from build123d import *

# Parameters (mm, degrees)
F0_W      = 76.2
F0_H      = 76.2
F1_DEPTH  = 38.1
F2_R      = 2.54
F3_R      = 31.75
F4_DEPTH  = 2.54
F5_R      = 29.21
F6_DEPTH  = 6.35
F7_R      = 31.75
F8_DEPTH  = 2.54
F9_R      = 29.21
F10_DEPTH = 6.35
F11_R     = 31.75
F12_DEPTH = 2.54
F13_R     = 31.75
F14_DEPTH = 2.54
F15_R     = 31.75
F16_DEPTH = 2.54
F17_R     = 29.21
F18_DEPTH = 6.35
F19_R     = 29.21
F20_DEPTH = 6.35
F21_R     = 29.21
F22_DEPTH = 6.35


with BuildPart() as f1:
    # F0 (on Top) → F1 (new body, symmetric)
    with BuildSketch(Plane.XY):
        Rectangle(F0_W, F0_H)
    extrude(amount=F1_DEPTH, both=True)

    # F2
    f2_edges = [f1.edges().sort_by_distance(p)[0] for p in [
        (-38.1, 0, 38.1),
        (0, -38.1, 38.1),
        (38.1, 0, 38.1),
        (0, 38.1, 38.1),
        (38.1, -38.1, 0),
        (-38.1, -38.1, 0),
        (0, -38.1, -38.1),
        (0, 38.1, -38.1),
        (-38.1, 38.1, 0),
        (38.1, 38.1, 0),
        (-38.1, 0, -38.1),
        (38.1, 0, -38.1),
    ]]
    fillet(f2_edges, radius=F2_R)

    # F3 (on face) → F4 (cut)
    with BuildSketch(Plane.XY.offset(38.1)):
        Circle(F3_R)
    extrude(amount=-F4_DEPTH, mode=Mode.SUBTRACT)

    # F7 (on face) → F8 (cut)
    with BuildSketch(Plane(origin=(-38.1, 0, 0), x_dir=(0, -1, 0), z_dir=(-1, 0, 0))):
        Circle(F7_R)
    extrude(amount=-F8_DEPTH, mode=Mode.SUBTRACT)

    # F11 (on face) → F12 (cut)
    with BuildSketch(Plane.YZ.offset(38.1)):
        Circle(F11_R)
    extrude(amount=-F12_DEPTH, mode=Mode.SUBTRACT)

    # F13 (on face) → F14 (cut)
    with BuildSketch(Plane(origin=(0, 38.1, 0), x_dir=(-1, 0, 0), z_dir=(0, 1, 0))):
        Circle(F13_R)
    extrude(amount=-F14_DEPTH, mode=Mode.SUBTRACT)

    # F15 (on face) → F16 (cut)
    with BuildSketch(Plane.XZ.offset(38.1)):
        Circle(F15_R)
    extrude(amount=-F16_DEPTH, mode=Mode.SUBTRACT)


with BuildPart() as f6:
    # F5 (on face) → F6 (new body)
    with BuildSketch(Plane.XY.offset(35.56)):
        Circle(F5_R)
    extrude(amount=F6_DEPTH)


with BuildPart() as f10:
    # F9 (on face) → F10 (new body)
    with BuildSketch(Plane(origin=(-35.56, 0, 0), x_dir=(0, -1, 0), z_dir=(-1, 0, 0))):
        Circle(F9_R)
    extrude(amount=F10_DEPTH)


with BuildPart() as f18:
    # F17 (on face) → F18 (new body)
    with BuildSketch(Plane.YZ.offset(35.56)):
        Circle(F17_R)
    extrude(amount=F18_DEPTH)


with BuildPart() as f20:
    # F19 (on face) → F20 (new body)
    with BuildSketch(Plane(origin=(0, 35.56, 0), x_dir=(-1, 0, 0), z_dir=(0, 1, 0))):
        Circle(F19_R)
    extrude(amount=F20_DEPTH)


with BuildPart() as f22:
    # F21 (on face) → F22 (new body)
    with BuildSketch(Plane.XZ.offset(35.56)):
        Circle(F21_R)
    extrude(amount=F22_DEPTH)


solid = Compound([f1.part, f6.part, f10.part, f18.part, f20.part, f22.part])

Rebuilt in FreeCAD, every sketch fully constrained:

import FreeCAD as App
import Part
import Sketcher
Q = App.Units.Quantity


def add_polygon(sketch, points):
    """Adds a closed chain of lines whose ends are joined by coincident constraints."""
    first, n = sketch.GeometryCount, len(points)
    for a, b in zip(points, points[1:] + points[:1]):
        sketch.addGeometry(Part.LineSegment(App.Vector(*a, 0), App.Vector(*b, 0)), False)
    for i in range(n):
        sketch.addConstraint(Sketcher.Constraint("Coincident", first + i, 2, first + (i + 1) % n, 1))

doc = App.newDocument("Part")
body = doc.addObject("PartDesign::Body", "Body")

# Sketch on XY plane
sketch1 = doc.addObject("Sketcher::SketchObject", "Sketch")
body.addObject(sketch1)
sketch1.AttachmentSupport = (doc.XY_Plane, [""])
sketch1.MapMode = "FlatFace"
add_polygon(sketch1, [(-38, 38), (-38, -38), (38, -38), (38, 38)])  # lines 0-3
sketch1.addConstraint([
    Sketcher.Constraint("Vertical", 0),
    Sketcher.Constraint("Horizontal", 1),
    Sketcher.Constraint("Vertical", 2),
    Sketcher.Constraint("Horizontal", 3),
    Sketcher.Constraint("Symmetric", 0, 2, 2, 2, -1, 1),
    Sketcher.Constraint("Equal", 3, 0),
    Sketcher.Constraint("DistanceX", 1, 1, 1, 2, Q("3 in")),
])
pad1 = doc.addObject("PartDesign::Pad", "Pad")
body.addObject(pad1)
pad1.Profile = sketch1
pad1.Length = Q("3 in")
pad1.Midplane = True
doc.recompute()

fillet = doc.addObject("PartDesign::Fillet", "Fillet")
body.addObject(fillet)
fillet.Base = (pad1, ["Edge1"])
fillet.UseAllEdges = True
fillet.Radius = Q("0.1 in")

# Sketch on XY plane
sketch2 = doc.addObject("Sketcher::SketchObject", "Sketch001")
body.addObject(sketch2)
sketch2.AttachmentSupport = (doc.XY_Plane, [""])
sketch2.MapMode = "FlatFace"
sketch2.AttachmentOffset = App.Placement(App.Vector(0, 0, 1.5 * 25.4), App.Rotation())
sketch2.addGeometry(Part.Circle(App.Vector(0, 0, 0), App.Vector(0, 0, 1), 32), False)
sketch2.addConstraint([
    Sketcher.Constraint("Coincident", 0, 3, -1, 1),
    Sketcher.Constraint("Diameter", 0, Q("2.5 in")),
])
pocket1 = doc.addObject("PartDesign::Pocket", "Pocket")
body.addObject(pocket1)
pocket1.Profile = sketch2
pocket1.Length = Q("0.1 in")

# Sketch on YZ plane
sketch3 = doc.addObject("Sketcher::SketchObject", "Sketch002")
body.addObject(sketch3)
sketch3.AttachmentSupport = (doc.YZ_Plane, [""])
sketch3.MapMode = "FlatFace"
sketch3.AttachmentOffset = App.Placement(App.Vector(0, 0, -1.5 * 25.4), App.Rotation())
sketch3.addGeometry(Part.Circle(App.Vector(0, 0, 0), App.Vector(0, 0, 1), 32), False)
sketch3.addConstraint([
    Sketcher.Constraint("Coincident", 0, 3, -1, 1),
    Sketcher.Constraint("Diameter", 0, Q("2.5 in")),
])
pocket2 = doc.addObject("PartDesign::Pocket", "Pocket001")
body.addObject(pocket2)
pocket2.Profile = sketch3
pocket2.Length = Q("0.1 in")
pocket2.Reversed = True

# Sketch on YZ plane
sketch4 = doc.addObject("Sketcher::SketchObject", "Sketch003")
body.addObject(sketch4)
sketch4.AttachmentSupport = (doc.YZ_Plane, [""])
sketch4.MapMode = "FlatFace"
sketch4.AttachmentOffset = App.Placement(App.Vector(0, 0, 1.5 * 25.4), App.Rotation())
sketch4.addGeometry(Part.Circle(App.Vector(0, 0, 0), App.Vector(0, 0, 1), 32), False)
sketch4.addConstraint([
    Sketcher.Constraint("Coincident", 0, 3, -1, 1),
    Sketcher.Constraint("Diameter", 0, Q("2.5 in")),
])
pocket3 = doc.addObject("PartDesign::Pocket", "Pocket002")
body.addObject(pocket3)
pocket3.Profile = sketch4
pocket3.Length = Q("0.1 in")

# Sketch on XZ plane
sketch5 = doc.addObject("Sketcher::SketchObject", "Sketch004")
body.addObject(sketch5)
sketch5.AttachmentSupport = (doc.XZ_Plane, [""])
sketch5.MapMode = "FlatFace"
sketch5.AttachmentOffset = App.Placement(App.Vector(0, 0, -1.5 * 25.4), App.Rotation())
sketch5.addGeometry(Part.Circle(App.Vector(0, 0, 0), App.Vector(0, 0, 1), 32), False)
sketch5.addConstraint([
    Sketcher.Constraint("Coincident", 0, 3, -1, 1),
    Sketcher.Constraint("Diameter", 0, Q("2.5 in")),
])
pocket4 = doc.addObject("PartDesign::Pocket", "Pocket003")
body.addObject(pocket4)
pocket4.Profile = sketch5
pocket4.Length = Q("0.1 in")
pocket4.Reversed = True

# Sketch on XZ plane
sketch6 = doc.addObject("Sketcher::SketchObject", "Sketch005")
body.addObject(sketch6)
sketch6.AttachmentSupport = (doc.XZ_Plane, [""])
sketch6.MapMode = "FlatFace"
sketch6.AttachmentOffset = App.Placement(App.Vector(0, 0, 1.5 * 25.4), App.Rotation())
sketch6.addGeometry(Part.Circle(App.Vector(0, 0, 0), App.Vector(0, 0, 1), 32), False)
sketch6.addConstraint([
    Sketcher.Constraint("Coincident", 0, 3, -1, 1),
    Sketcher.Constraint("Diameter", 0, Q("2.5 in")),
])
pocket5 = doc.addObject("PartDesign::Pocket", "Pocket004")
body.addObject(pocket5)
pocket5.Profile = sketch6
pocket5.Length = Q("0.1 in")
body2 = doc.addObject("PartDesign::Body", "Body001")

# Sketch on XY plane
sketch7 = doc.addObject("Sketcher::SketchObject", "Sketch006")
body2.addObject(sketch7)
sketch7.AttachmentSupport = (doc.getObject("XY_Plane001"), [""])
sketch7.MapMode = "FlatFace"
sketch7.AttachmentOffset = App.Placement(App.Vector(0, 0, 1.4 * 25.4), App.Rotation())
sketch7.addGeometry(Part.Circle(App.Vector(0, 0, 0), App.Vector(0, 0, 1), 29), False)
sketch7.addConstraint([
    Sketcher.Constraint("Coincident", 0, 3, -1, 1),
    Sketcher.Constraint("Diameter", 0, Q("2.3 in")),
])
pad2 = doc.addObject("PartDesign::Pad", "Pad001")
body2.addObject(pad2)
pad2.Profile = sketch7
pad2.Length = Q("0.25 in")
body3 = doc.addObject("PartDesign::Body", "Body002")

# Sketch on YZ plane
sketch8 = doc.addObject("Sketcher::SketchObject", "Sketch007")
body3.addObject(sketch8)
sketch8.AttachmentSupport = (doc.getObject("YZ_Plane002"), [""])
sketch8.MapMode = "FlatFace"
sketch8.AttachmentOffset = App.Placement(App.Vector(0, 0, -1.4 * 25.4), App.Rotation())
sketch8.addGeometry(Part.Circle(App.Vector(0, 0, 0), App.Vector(0, 0, 1), 29), False)
sketch8.addConstraint([
    Sketcher.Constraint("Coincident", 0, 3, -1, 1),
    Sketcher.Constraint("Diameter", 0, Q("2.3 in")),
])
pad3 = doc.addObject("PartDesign::Pad", "Pad002")
body3.addObject(pad3)
pad3.Profile = sketch8
pad3.Length = Q("0.25 in")
pad3.Reversed = True
body4 = doc.addObject("PartDesign::Body", "Body003")

# Sketch on YZ plane
sketch9 = doc.addObject("Sketcher::SketchObject", "Sketch008")
body4.addObject(sketch9)
sketch9.AttachmentSupport = (doc.getObject("YZ_Plane003"), [""])
sketch9.MapMode = "FlatFace"
sketch9.AttachmentOffset = App.Placement(App.Vector(0, 0, 1.4 * 25.4), App.Rotation())
sketch9.addGeometry(Part.Circle(App.Vector(0, 0, 0), App.Vector(0, 0, 1), 29), False)
sketch9.addConstraint([
    Sketcher.Constraint("Coincident", 0, 3, -1, 1),
    Sketcher.Constraint("Diameter", 0, Q("2.3 in")),
])
pad4 = doc.addObject("PartDesign::Pad", "Pad003")
body4.addObject(pad4)
pad4.Profile = sketch9
pad4.Length = Q("0.25 in")
body5 = doc.addObject("PartDesign::Body", "Body004")

# Sketch on XZ plane
sketch10 = doc.addObject("Sketcher::SketchObject", "Sketch009")
body5.addObject(sketch10)
sketch10.AttachmentSupport = (doc.getObject("XZ_Plane004"), [""])
sketch10.MapMode = "FlatFace"
sketch10.AttachmentOffset = App.Placement(App.Vector(0, 0, -1.4 * 25.4), App.Rotation())
sketch10.addGeometry(Part.Circle(App.Vector(0, 0, 0), App.Vector(0, 0, 1), 29), False)
sketch10.addConstraint([
    Sketcher.Constraint("Coincident", 0, 3, -1, 1),
    Sketcher.Constraint("Diameter", 0, Q("2.3 in")),
])
pad5 = doc.addObject("PartDesign::Pad", "Pad004")
body5.addObject(pad5)
pad5.Profile = sketch10
pad5.Length = Q("0.25 in")
pad5.Reversed = True
body6 = doc.addObject("PartDesign::Body", "Body005")

# Sketch on XZ plane
sketch11 = doc.addObject("Sketcher::SketchObject", "Sketch010")
body6.addObject(sketch11)
sketch11.AttachmentSupport = (doc.getObject("XZ_Plane005"), [""])
sketch11.MapMode = "FlatFace"
sketch11.AttachmentOffset = App.Placement(App.Vector(0, 0, 1.4 * 25.4), App.Rotation())
sketch11.addGeometry(Part.Circle(App.Vector(0, 0, 0), App.Vector(0, 0, 1), 29), False)
sketch11.addConstraint([
    Sketcher.Constraint("Coincident", 0, 3, -1, 1),
    Sketcher.Constraint("Diameter", 0, Q("2.3 in")),
])
pad6 = doc.addObject("PartDesign::Pad", "Pad005")
body6.addObject(pad6)
pad6.Profile = sketch11
pad6.Length = Q("0.25 in")

doc.recompute()
